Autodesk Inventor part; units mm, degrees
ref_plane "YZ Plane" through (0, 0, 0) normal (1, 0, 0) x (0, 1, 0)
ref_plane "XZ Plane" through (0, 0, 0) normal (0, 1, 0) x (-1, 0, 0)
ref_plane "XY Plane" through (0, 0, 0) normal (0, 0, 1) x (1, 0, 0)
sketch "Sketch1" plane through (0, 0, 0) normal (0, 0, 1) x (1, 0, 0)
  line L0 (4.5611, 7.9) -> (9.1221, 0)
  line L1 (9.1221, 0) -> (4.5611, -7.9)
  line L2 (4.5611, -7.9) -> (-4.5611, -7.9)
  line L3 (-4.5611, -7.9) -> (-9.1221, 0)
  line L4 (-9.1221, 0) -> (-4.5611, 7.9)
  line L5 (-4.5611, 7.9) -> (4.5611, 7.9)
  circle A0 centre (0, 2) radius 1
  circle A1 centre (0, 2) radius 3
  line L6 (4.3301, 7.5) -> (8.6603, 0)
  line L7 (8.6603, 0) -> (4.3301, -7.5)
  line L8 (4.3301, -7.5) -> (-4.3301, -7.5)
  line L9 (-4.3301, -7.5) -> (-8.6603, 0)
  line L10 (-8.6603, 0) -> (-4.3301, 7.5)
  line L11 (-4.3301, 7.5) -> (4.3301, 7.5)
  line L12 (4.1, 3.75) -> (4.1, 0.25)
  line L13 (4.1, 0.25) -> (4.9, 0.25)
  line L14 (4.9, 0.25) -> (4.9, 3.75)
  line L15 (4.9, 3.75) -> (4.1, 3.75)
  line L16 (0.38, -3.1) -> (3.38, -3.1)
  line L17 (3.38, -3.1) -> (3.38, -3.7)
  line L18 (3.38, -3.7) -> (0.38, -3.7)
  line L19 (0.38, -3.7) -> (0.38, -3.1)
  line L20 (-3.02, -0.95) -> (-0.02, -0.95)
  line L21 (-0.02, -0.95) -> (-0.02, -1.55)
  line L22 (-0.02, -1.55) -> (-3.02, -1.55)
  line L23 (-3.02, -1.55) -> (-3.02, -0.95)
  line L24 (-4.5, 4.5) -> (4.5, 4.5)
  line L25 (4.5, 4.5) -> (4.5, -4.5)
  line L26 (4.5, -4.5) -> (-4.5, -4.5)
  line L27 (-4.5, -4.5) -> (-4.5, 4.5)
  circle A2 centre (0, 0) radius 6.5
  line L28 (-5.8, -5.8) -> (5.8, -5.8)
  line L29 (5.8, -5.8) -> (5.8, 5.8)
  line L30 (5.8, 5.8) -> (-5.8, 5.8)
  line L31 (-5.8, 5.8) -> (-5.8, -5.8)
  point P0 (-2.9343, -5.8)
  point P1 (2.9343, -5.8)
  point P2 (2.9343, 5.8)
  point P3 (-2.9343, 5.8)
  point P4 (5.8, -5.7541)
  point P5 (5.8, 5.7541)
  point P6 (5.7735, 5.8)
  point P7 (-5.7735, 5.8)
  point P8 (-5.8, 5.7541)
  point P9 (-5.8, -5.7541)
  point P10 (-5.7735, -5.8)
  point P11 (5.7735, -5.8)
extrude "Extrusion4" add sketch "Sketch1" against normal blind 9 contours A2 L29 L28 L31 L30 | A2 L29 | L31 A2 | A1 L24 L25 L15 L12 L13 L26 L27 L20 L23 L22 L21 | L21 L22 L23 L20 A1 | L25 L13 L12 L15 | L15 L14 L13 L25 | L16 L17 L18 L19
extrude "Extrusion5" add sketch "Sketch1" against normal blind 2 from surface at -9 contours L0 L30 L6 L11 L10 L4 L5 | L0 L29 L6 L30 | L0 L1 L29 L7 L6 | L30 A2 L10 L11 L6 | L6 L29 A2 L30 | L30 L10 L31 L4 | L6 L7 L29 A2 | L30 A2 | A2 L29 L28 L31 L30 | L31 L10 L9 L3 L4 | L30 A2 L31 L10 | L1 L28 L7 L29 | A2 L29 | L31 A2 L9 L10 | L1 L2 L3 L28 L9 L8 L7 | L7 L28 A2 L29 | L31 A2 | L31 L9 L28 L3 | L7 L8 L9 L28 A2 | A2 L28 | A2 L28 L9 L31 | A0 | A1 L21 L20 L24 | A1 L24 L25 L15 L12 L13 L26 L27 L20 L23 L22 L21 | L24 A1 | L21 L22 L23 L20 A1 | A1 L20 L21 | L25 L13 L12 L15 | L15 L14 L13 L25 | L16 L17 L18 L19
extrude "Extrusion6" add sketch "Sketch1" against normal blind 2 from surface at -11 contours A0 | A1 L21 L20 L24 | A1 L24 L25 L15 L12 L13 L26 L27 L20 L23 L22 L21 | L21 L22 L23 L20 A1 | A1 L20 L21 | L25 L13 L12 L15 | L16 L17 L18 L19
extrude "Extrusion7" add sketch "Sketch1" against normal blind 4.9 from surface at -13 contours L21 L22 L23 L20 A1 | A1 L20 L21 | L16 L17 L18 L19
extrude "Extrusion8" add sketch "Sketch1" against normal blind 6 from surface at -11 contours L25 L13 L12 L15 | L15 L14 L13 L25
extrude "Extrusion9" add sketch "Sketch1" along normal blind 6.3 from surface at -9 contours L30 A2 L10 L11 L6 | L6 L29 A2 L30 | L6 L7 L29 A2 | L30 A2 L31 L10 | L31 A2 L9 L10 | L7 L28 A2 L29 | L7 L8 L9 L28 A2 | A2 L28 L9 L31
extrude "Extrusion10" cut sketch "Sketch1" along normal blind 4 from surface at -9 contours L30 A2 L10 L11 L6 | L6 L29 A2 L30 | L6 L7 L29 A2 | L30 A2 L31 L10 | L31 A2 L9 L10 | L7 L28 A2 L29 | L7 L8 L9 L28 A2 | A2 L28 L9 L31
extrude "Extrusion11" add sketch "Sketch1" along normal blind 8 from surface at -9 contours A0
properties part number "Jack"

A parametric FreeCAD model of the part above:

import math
import FreeCAD as App
import Part
import Sketcher

V = App.Vector
Q = App.Units.Quantity

doc = App.newDocument("Part")
body = doc.addObject("PartDesign::Body", "Body")

sketch1 = doc.addObject("Sketcher::SketchObject", "Sketch")
body.addObject(sketch1)
sketch1.AttachmentSupport = (doc.XY_Plane, [""])
sketch1.MapMode = "FlatFace"
sketch1.addGeometry(Part.LineSegment(V(2.9, 5.8, 0), V(-2.9, 5.8, 0)), False)
sketch1.addGeometry(Part.ArcOfCircle(Part.Circle(V(0, 0, 0), V(0, 0, 1), 6.5), math.radians(117), math.radians(243)), False)
sketch1.addGeometry(Part.LineSegment(V(-2.9, -5.8, 0), V(2.9, -5.8, 0)), False)
sketch1.addGeometry(Part.ArcOfCircle(Part.Circle(V(0, 0, 0), V(0, 0, 1), 6.5), math.radians(-63), math.radians(63)), False)
sketch1.addGeometry(Part.Circle(V(0, 2, 0), V(0, 0, 1), 3), False)
sketch1.addConstraint(Sketcher.Constraint("Coincident", 0, 2, 1, 1))
sketch1.addConstraint(Sketcher.Constraint("Coincident", 1, 2, 2, 1))
sketch1.addConstraint(Sketcher.Constraint("Coincident", 2, 2, 3, 1))
sketch1.addConstraint(Sketcher.Constraint("Coincident", 3, 2, 0, 1))
sketch1.addConstraint(Sketcher.Constraint("Horizontal", 0))
sketch1.addConstraint(Sketcher.Constraint("Horizontal", 2))
sketch1.addConstraint(Sketcher.Constraint("Coincident", 1, 3, -1, 1))
sketch1.addConstraint(Sketcher.Constraint("Coincident", 3, 3, -1, 1))
sketch1.addConstraint(Sketcher.Constraint("Equal", 1, 3))
sketch1.addConstraint(Sketcher.Constraint("PointOnObject", 4, 3, -2))
sketch1.addConstraint(Sketcher.Constraint("Vertical", 0, 2, 1, 2))
sketch1.addConstraint(Sketcher.Constraint("Diameter", 4, Q("6 mm")))
sketch1.addConstraint(Sketcher.Constraint("Radius", 1, Q("6.5 mm")))
sketch1.addConstraint(Sketcher.Constraint("DistanceY", -1, 1, 4, 3, Q("2 mm")))
sketch1.addConstraint(Sketcher.Constraint("DistanceY", -1, 1, 0, 2, Q("5.8 mm")))
pad1 = doc.addObject("PartDesign::Pad", "Pad")
body.addObject(pad1)
pad1.Profile = sketch1
pad1.Length = 9
pad1.Reversed = True

sketch2 = doc.addObject("Sketcher::SketchObject", "Sketch001")
body.addObject(sketch2)
sketch2.AttachmentSupport = (doc.XY_Plane, [""])
sketch2.MapMode = "FlatFace"
sketch2.AttachmentOffset = App.Placement(V(0, 0, -9), App.Rotation())
sketch2.addGeometry(Part.LineSegment(V(5, 8, 0), V(-5, 8, 0)), False)
sketch2.addGeometry(Part.LineSegment(V(-5, 8, 0), V(-9, 0, 0)), False)
sketch2.addGeometry(Part.LineSegment(V(-9, 0, 0), V(-5, -8, 0)), False)
sketch2.addGeometry(Part.LineSegment(V(-5, -8, 0), V(5, -8, 0)), False)
sketch2.addGeometry(Part.LineSegment(V(5, -8, 0), V(9, 0, 0)), False)
sketch2.addGeometry(Part.LineSegment(V(9, 0, 0), V(5, 8, 0)), False)
sketch2.addConstraint(Sketcher.Constraint("Coincident", 0, 2, 1, 1))
sketch2.addConstraint(Sketcher.Constraint("Coincident", 1, 2, 2, 1))
sketch2.addConstraint(Sketcher.Constraint("Coincident", 2, 2, 3, 1))
sketch2.addConstraint(Sketcher.Constraint("Coincident", 3, 2, 4, 1))
sketch2.addConstraint(Sketcher.Constraint("Coincident", 4, 2, 5, 1))
sketch2.addConstraint(Sketcher.Constraint("Coincident", 5, 2, 0, 1))
sketch2.addConstraint(Sketcher.Constraint("Horizontal", 0))
sketch2.addConstraint(Sketcher.Constraint("Horizontal", 3))
sketch2.addConstraint(Sketcher.Constraint("Symmetric", 0, 2, 3, 2, -1, 1))
sketch2.addConstraint(Sketcher.Constraint("Symmetric", 1, 2, 4, 2, -1, 1))
sketch2.addConstraint(Sketcher.Constraint("PointOnObject", 1, 2, -1))
sketch2.addConstraint(Sketcher.Constraint("Parallel", 2, 5))
sketch2.addConstraint(Sketcher.Constraint("Vertical", 0, 2, 2, 2))
sketch2.addConstraint(Sketcher.Constraint("Angle", 1, Q("-119.9996 deg")))
sketch2.addConstraint(Sketcher.Constraint("DistanceY", -1, 1, 0, 2, Q("7.9 mm")))
sketch2.addConstraint(Sketcher.Constraint("DistanceX", 0, 2, 0, 1, Q("9.1222 mm")))
pad2 = doc.addObject("PartDesign::Pad", "Pad001")
body.addObject(pad2)
pad2.Profile = sketch2
pad2.Length = 2
pad2.Reversed = True

sketch3 = doc.addObject("Sketcher::SketchObject", "Sketch002")
body.addObject(sketch3)
sketch3.AttachmentSupport = (doc.XY_Plane, [""])
sketch3.MapMode = "FlatFace"
sketch3.AttachmentOffset = App.Placement(V(0, 0, -11), App.Rotation())
sketch3.addGeometry(Part.LineSegment(V(-4, 4, 0), V(-4, -4, 0)), False)
sketch3.addGeometry(Part.LineSegment(V(-4, -4, 0), V(4, -4, 0)), False)
sketch3.addGeometry(Part.LineSegment(V(4, -4, 0), V(4, 4, 0)), False)
sketch3.addGeometry(Part.LineSegment(V(4, 4, 0), V(-4, 4, 0)), False)
sketch3.addConstraint(Sketcher.Constraint("Coincident", 0, 2, 1, 1))
sketch3.addConstraint(Sketcher.Constraint("Coincident", 1, 2, 2, 1))
sketch3.addConstraint(Sketcher.Constraint("Coincident", 2, 2, 3, 1))
sketch3.addConstraint(Sketcher.Constraint("Coincident", 3, 2, 0, 1))
sketch3.addConstraint(Sketcher.Constraint("Vertical", 0))
sketch3.addConstraint(Sketcher.Constraint("Horizontal", 1))
sketch3.addConstraint(Sketcher.Constraint("Vertical", 2))
sketch3.addConstraint(Sketcher.Constraint("Horizontal", 3))
sketch3.addConstraint(Sketcher.Constraint("Symmetric", 0, 2, 2, 2, -1, 1))
sketch3.addConstraint(Sketcher.Constraint("Equal", 3, 0))
sketch3.addConstraint(Sketcher.Constraint("DistanceX", 1, 1, 1, 2, Q("9 mm")))
pad3 = doc.addObject("PartDesign::Pad", "Pad002")
body.addObject(pad3)
pad3.Profile = sketch3
pad3.Length = 2
pad3.Reversed = True

sketch4 = doc.addObject("Sketcher::SketchObject", "Sketch003")
body.addObject(sketch4)
sketch4.AttachmentSupport = (doc.XY_Plane, [""])
sketch4.MapMode = "FlatFace"
sketch4.AttachmentOffset = App.Placement(V(0, 0, -13), App.Rotation())
sketch4.addGeometry(Part.LineSegment(V(0, -1.6, 0), V(0, -0.9, 0)), False)
sketch4.addGeometry(Part.LineSegment(V(0, -0.9, 0), V(-3, -0.9, 0)), False)
sketch4.addGeometry(Part.LineSegment(V(-3, -0.9, 0), V(-3, -1.6, 0)), False)
sketch4.addGeometry(Part.LineSegment(V(-3, -1.6, 0), V(0, -1.6, 0)), False)
sketch4.addGeometry(Part.LineSegment(V(3.4, -3.1, 0), V(0.4, -3.1, 0)), False)
sketch4.addGeometry(Part.LineSegment(V(0.4, -3.1, 0), V(0.4, -3.7, 0)), False)
sketch4.addGeometry(Part.LineSegment(V(0.4, -3.7, 0), V(3.4, -3.7, 0)), False)
sketch4.addGeometry(Part.LineSegment(V(3.4, -3.7, 0), V(3.4, -3.1, 0)), False)
sketch4.addConstraint(Sketcher.Constraint("Coincident", 0, 2, 1, 1))
sketch4.addConstraint(Sketcher.Constraint("Coincident", 1, 2, 2, 1))
sketch4.addConstraint(Sketcher.Constraint("Coincident", 2, 2, 3, 1))
sketch4.addConstraint(Sketcher.Constraint("Coincident", 3, 2, 0, 1))
sketch4.addConstraint(Sketcher.Constraint("Coincident", 4, 2, 5, 1))
sketch4.addConstraint(Sketcher.Constraint("Coincident", 5, 2, 6, 1))
sketch4.addConstraint(Sketcher.Constraint("Coincident", 6, 2, 7, 1))
sketch4.addConstraint(Sketcher.Constraint("Coincident", 7, 2, 4, 1))
sketch4.addConstraint(Sketcher.Constraint("Vertical", 0))
sketch4.addConstraint(Sketcher.Constraint("Horizontal", 1))
sketch4.addConstraint(Sketcher.Constraint("Vertical", 2))
sketch4.addConstraint(Sketcher.Constraint("Horizontal", 3))
sketch4.addConstraint(Sketcher.Constraint("Horizontal", 4))
sketch4.addConstraint(Sketcher.Constraint("Vertical", 5))
sketch4.addConstraint(Sketcher.Constraint("Horizontal", 6))
sketch4.addConstraint(Sketcher.Constraint("Vertical", 7))
sketch4.addConstraint(Sketcher.Constraint("Equal", 3, 4))
sketch4.addConstraint(Sketcher.Constraint("Equal", 2, 5))
sketch4.addConstraint(Sketcher.Constraint("DistanceX", 1, 2, 1, 1, Q("3 mm")))
sketch4.addConstraint(Sketcher.Constraint("DistanceY", 0, 1, 0, 2, Q("0.6 mm")))
sketch4.addConstraint(Sketcher.Constraint("DistanceY", 4, 2, -1, 1, Q("3.1 mm")))
sketch4.addConstraint(Sketcher.Constraint("DistanceX", 3, 2, 4, 2, Q("0.4 mm")))
sketch4.addConstraint(Sketcher.Constraint("DistanceX", 0, 2, -1, 1, Q("0.02 mm")))
sketch4.addConstraint(Sketcher.Constraint("DistanceY", 0, 2, -1, 1, Q("0.95 mm")))
pad4 = doc.addObject("PartDesign::Pad", "Pad003")
body.addObject(pad4)
pad4.Profile = sketch4
pad4.Length = 4.9
pad4.Reversed = True

sketch5 = doc.addObject("Sketcher::SketchObject", "Sketch004")
body.addObject(sketch5)
sketch5.AttachmentSupport = (doc.XY_Plane, [""])
sketch5.MapMode = "FlatFace"
sketch5.AttachmentOffset = App.Placement(V(0, 0, -11), App.Rotation())
sketch5.addGeometry(Part.LineSegment(V(4.1, 0.2, 0), V(4.9, 0.2, 0)), False)
sketch5.addGeometry(Part.LineSegment(V(4.9, 0.2, 0), V(4.9, 3.8, 0)), False)
sketch5.addGeometry(Part.LineSegment(V(4.9, 3.8, 0), V(4.1, 3.8, 0)), False)
sketch5.addGeometry(Part.LineSegment(V(4.1, 3.8, 0), V(4.1, 0.2, 0)), False)
sketch5.addConstraint(Sketcher.Constraint("Coincident", 0, 2, 1, 1))
sketch5.addConstraint(Sketcher.Constraint("Coincident", 1, 2, 2, 1))
sketch5.addConstraint(Sketcher.Constraint("Coincident", 2, 2, 3, 1))
sketch5.addConstraint(Sketcher.Constraint("Coincident", 3, 2, 0, 1))
sketch5.addConstraint(Sketcher.Constraint("Horizontal", 0))
sketch5.addConstraint(Sketcher.Constraint("Vertical", 1))
sketch5.addConstraint(Sketcher.Constraint("Horizontal", 2))
sketch5.addConstraint(Sketcher.Constraint("Vertical", 3))
sketch5.addConstraint(Sketcher.Constraint("DistanceX", 0, 1, 0, 2, Q("0.8 mm")))
sketch5.addConstraint(Sketcher.Constraint("DistanceY", 1, 1, 1, 2, Q("3.5 mm")))
sketch5.addConstraint(Sketcher.Constraint("DistanceX", -1, 1, 0, 2, Q("4.9 mm")))
sketch5.addConstraint(Sketcher.Constraint("DistanceY", -1, 1, 0, 2, Q("0.25 mm")))
pad5 = doc.addObject("PartDesign::Pad", "Pad004")
body.addObject(pad5)
pad5.Profile = sketch5
pad5.Length = 6
pad5.Reversed = True

sketch6 = doc.addObject("Sketcher::SketchObject", "Sketch005")
body.addObject(sketch6)
sketch6.AttachmentSupport = (doc.XY_Plane, [""])
sketch6.MapMode = "FlatFace"
sketch6.AttachmentOffset = App.Placement(V(0, 0, -9), App.Rotation())
sketch6.addGeometry(Part.LineSegment(V(-4, 8, 0), V(-9, 0, 0)), False)
sketch6.addGeometry(Part.LineSegment(V(-9, 0, 0), V(-4, -8, 0)), False)
sketch6.addGeometry(Part.LineSegment(V(-4, -8, 0), V(4, -8, 0)), False)
sketch6.addGeometry(Part.LineSegment(V(4, -8, 0), V(9, 0, 0)), False)
sketch6.addGeometry(Part.LineSegment(V(9, 0, 0), V(4, 8, 0)), False)
sketch6.addGeometry(Part.LineSegment(V(4, 8, 0), V(-4, 8, 0)), False)
sketch6.addGeometry(Part.Circle(V(0, 0, 0), V(0, 0, 1), 6), False)
sketch6.addConstraint(Sketcher.Constraint("Coincident", 0, 2, 1, 1))
sketch6.addConstraint(Sketcher.Constraint("Coincident", 1, 2, 2, 1))
sketch6.addConstraint(Sketcher.Constraint("Coincident", 2, 2, 3, 1))
sketch6.addConstraint(Sketcher.Constraint("Coincident", 3, 2, 4, 1))
sketch6.addConstraint(Sketcher.Constraint("Coincident", 4, 2, 5, 1))
sketch6.addConstraint(Sketcher.Constraint("Coincident", 5, 2, 0, 1))
sketch6.addConstraint(Sketcher.Constraint("Horizontal", 2))
sketch6.addConstraint(Sketcher.Constraint("Horizontal", 5))
sketch6.addConstraint(Sketcher.Constraint("Coincident", 6, 3, -1, 1))
sketch6.addConstraint(Sketcher.Constraint("Symmetric", 0, 2, 3, 2, -1, 1))
sketch6.addConstraint(Sketcher.Constraint("Symmetric", 1, 2, 4, 2, -1, 1))
sketch6.addConstraint(Sketcher.Constraint("PointOnObject", 0, 2, -1))
sketch6.addConstraint(Sketcher.Constraint("Parallel", 0, 3))
sketch6.addConstraint(Sketcher.Constraint("Vertical", 2, 2, 4, 2))
sketch6.addConstraint(Sketcher.Constraint("Diameter", 6, Q("13 mm")))
sketch6.addConstraint(Sketcher.Constraint("Angle", 0, Q("-120.0004 deg")))
sketch6.addConstraint(Sketcher.Constraint("DistanceY", 2, 2, 4, 2, Q("15 mm")))
sketch6.addConstraint(Sketcher.Constraint("DistanceX", 1, 2, -1, 1, Q("4.33 mm")))
pad6 = doc.addObject("PartDesign::Pad", "Pad005")
body.addObject(pad6)
pad6.Profile = sketch6
pad6.Length = 6.3

sketch7 = doc.addObject("Sketcher::SketchObject", "Sketch006")
body.addObject(sketch7)
sketch7.AttachmentSupport = (doc.XY_Plane, [""])
sketch7.MapMode = "FlatFace"
sketch7.AttachmentOffset = App.Placement(V(0, 0, -9), App.Rotation())
sketch7.addGeometry(Part.LineSegment(V(-4, 8, 0), V(-9, 0, 0)), False)
sketch7.addGeometry(Part.LineSegment(V(-9, 0, 0), V(-4, -8, 0)), False)
sketch7.addGeometry(Part.LineSegment(V(-4, -8, 0), V(4, -8, 0)), False)
sketch7.addGeometry(Part.LineSegment(V(4, -8, 0), V(9, 0, 0)), False)
sketch7.addGeometry(Part.LineSegment(V(9, 0, 0), V(4, 8, 0)), False)
sketch7.addGeometry(Part.LineSegment(V(4, 8, 0), V(-4, 8, 0)), False)
sketch7.addGeometry(Part.Circle(V(0, 0, 0), V(0, 0, 1), 6), False)
sketch7.addConstraint(Sketcher.Constraint("Coincident", 0, 2, 1, 1))
sketch7.addConstraint(Sketcher.Constraint("Coincident", 1, 2, 2, 1))
sketch7.addConstraint(Sketcher.Constraint("Coincident", 2, 2, 3, 1))
sketch7.addConstraint(Sketcher.Constraint("Coincident", 3, 2, 4, 1))
sketch7.addConstraint(Sketcher.Constraint("Coincident", 4, 2, 5, 1))
sketch7.addConstraint(Sketcher.Constraint("Coincident", 5, 2, 0, 1))
sketch7.addConstraint(Sketcher.Constraint("Horizontal", 2))
sketch7.addConstraint(Sketcher.Constraint("Horizontal", 5))
sketch7.addConstraint(Sketcher.Constraint("Coincident", 6, 3, -1, 1))
sketch7.addConstraint(Sketcher.Constraint("Symmetric", 0, 2, 3, 2, -1, 1))
sketch7.addConstraint(Sketcher.Constraint("Symmetric", 1, 2, 4, 2, -1, 1))
sketch7.addConstraint(Sketcher.Constraint("PointOnObject", 0, 2, -1))
sketch7.addConstraint(Sketcher.Constraint("Parallel", 0, 3))
sketch7.addConstraint(Sketcher.Constraint("Vertical", 2, 2, 4, 2))
sketch7.addConstraint(Sketcher.Constraint("Diameter", 6, Q("13 mm")))
sketch7.addConstraint(Sketcher.Constraint("Angle", 0, Q("-120.0004 deg")))
sketch7.addConstraint(Sketcher.Constraint("DistanceY", 2, 2, 4, 2, Q("15 mm")))
sketch7.addConstraint(Sketcher.Constraint("DistanceX", 1, 2, -1, 1, Q("4.33 mm")))
pocket1 = doc.addObject("PartDesign::Pocket", "Pocket")
body.addObject(pocket1)
pocket1.Profile = sketch7
pocket1.Length = 4
pocket1.Reversed = True

sketch8 = doc.addObject("Sketcher::SketchObject", "Sketch007")
body.addObject(sketch8)
sketch8.AttachmentSupport = (doc.XY_Plane, [""])
sketch8.MapMode = "FlatFace"
sketch8.AttachmentOffset = App.Placement(V(0, 0, -9), App.Rotation())
sketch8.addGeometry(Part.Circle(V(0, 2, 0), V(0, 0, 1), 1), False)
sketch8.addConstraint(Sketcher.Constraint("PointOnObject", 0, 3, -2))
sketch8.addConstraint(Sketcher.Constraint("Diameter", 0, Q("2 mm")))
sketch8.addConstraint(Sketcher.Constraint("DistanceY", -1, 1, 0, 3, Q("2 mm")))
pad7 = doc.addObject("PartDesign::Pad", "Pad006")
body.addObject(pad7)
pad7.Profile = sketch8
pad7.Length = 8

doc.recompute()
